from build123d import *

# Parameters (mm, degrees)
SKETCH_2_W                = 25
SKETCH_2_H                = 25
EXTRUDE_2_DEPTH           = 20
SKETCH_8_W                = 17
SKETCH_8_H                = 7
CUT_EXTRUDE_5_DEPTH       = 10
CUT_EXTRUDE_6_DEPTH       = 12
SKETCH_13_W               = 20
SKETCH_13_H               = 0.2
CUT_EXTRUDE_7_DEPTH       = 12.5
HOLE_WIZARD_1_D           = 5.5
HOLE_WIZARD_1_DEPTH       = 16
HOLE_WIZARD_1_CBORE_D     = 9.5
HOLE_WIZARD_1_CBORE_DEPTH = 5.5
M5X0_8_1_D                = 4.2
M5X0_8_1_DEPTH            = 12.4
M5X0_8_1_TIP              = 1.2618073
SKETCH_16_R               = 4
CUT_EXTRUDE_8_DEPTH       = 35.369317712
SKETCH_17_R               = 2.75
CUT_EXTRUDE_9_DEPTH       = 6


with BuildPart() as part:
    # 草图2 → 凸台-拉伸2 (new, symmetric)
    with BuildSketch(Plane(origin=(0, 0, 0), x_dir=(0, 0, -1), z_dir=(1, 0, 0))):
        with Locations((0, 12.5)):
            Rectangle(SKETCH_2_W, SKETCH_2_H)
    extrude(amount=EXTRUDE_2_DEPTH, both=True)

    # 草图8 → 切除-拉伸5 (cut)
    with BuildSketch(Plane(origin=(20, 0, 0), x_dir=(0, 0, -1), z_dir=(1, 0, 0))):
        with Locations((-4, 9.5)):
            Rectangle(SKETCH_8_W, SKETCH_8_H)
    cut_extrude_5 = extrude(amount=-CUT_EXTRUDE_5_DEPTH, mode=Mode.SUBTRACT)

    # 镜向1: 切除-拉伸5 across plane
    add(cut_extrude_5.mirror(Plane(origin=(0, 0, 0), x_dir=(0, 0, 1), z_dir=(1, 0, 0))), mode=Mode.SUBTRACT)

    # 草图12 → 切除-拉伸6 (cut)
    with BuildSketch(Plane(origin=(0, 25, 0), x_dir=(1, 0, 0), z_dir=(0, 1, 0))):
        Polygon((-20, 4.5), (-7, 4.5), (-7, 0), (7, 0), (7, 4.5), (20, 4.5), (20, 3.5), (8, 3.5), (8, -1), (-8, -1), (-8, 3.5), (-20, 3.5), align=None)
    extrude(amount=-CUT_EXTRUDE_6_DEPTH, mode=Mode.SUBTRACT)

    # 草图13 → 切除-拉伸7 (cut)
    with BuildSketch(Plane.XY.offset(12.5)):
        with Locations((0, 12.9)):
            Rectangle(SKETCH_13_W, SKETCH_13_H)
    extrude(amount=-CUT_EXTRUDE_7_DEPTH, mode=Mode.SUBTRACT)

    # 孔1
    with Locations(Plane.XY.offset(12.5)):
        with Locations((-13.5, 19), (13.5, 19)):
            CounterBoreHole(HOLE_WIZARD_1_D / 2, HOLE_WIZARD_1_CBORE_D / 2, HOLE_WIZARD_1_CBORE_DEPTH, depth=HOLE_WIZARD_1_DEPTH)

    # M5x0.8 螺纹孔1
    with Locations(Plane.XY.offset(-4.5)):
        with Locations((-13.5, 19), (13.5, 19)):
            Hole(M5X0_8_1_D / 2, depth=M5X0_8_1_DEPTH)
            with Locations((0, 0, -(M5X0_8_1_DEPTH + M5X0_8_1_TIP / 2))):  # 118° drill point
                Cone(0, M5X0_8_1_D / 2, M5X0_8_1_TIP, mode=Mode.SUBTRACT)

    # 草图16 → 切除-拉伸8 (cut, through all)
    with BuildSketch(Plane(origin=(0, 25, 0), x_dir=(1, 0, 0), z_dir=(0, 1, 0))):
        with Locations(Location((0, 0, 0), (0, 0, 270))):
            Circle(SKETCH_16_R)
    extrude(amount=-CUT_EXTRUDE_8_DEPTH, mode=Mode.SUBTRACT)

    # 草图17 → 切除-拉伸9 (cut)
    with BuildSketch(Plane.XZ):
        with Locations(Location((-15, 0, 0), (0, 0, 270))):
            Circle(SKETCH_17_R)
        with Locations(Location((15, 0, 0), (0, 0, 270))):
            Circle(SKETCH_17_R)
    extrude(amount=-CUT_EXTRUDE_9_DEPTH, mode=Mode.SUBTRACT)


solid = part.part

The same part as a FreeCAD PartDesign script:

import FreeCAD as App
import Part
import Sketcher

V = App.Vector
Q = App.Units.Quantity


def add_polygon(sketch, points):
    """Adds a closed chain of lines whose ends are joined by coincident constraints."""
    first, n = sketch.GeometryCount, len(points)
    for a, b in zip(points, points[1:] + points[:1]):
        sketch.addGeometry(Part.LineSegment(App.Vector(*a, 0), App.Vector(*b, 0)), False)
    for i in range(n):
        sketch.addConstraint(Sketcher.Constraint("Coincident", first + i, 2, first + (i + 1) % n, 1))

doc = App.newDocument("Part")
body = doc.addObject("PartDesign::Body", "Body")

sketch1 = doc.addObject("Sketcher::SketchObject", "Sketch")
body.addObject(sketch1)
sketch1.AttachmentSupport = (doc.YZ_Plane, [""])
sketch1.MapMode = "FlatFace"
add_polygon(sketch1, [(25, 12.5), (0, 12.5), (0, -12.5), (25, -12.5)])
sketch1.addConstraint([
    Sketcher.Constraint("Horizontal", 0),
    Sketcher.Constraint("Vertical", 1),
    Sketcher.Constraint("Horizontal", 2),
    Sketcher.Constraint("Vertical", 3),
    Sketcher.Constraint("Symmetric", 0, 2, 1, 2, -1, 1),
    Sketcher.Constraint("Equal", 2, 1),
    Sketcher.Constraint("DistanceX", 0, 2, 0, 1, Q("25 mm")),
])
pad1 = doc.addObject("PartDesign::Pad", "Pad")
body.addObject(pad1)
pad1.Profile = sketch1
pad1.Length = 40
pad1.Midplane = True

sketch2 = doc.addObject("Sketcher::SketchObject", "Sketch001")
body.addObject(sketch2)
sketch2.AttachmentSupport = (doc.YZ_Plane, [""])
sketch2.MapMode = "FlatFace"
sketch2.AttachmentOffset = App.Placement(V(0, 0, 20), App.Rotation())
add_polygon(sketch2, [(13, 12.5), (6, 12.5), (6, -4.5), (13, -4.5)])
sketch2.addConstraint([
    Sketcher.Constraint("Horizontal", 0),
    Sketcher.Constraint("Vertical", 1),
    Sketcher.Constraint("Horizontal", 2),
    Sketcher.Constraint("Vertical", 3),
    Sketcher.Constraint("DistanceX", 0, 2, 0, 1, Q("7 mm")),
    Sketcher.Constraint("DistanceY", 1, 2, 1, 1, Q("17 mm")),
    Sketcher.Constraint("DistanceX", -1, 1, 0, 2, Q("6 mm")),
    Sketcher.Constraint("DistanceY", -1, 1, 0, 2, Q("12.5 mm")),
])
pocket1 = doc.addObject("PartDesign::Pocket", "Pocket")
body.addObject(pocket1)
pocket1.Profile = sketch2
pocket1.Length = 10
doc.recompute()

mirrored = doc.addObject("PartDesign::Mirrored", "Mirrored")
body.addObject(mirrored)
mirrored.Originals = [pocket1]
mirrored.MirrorPlane = (doc.YZ_Plane, [""])
body.Tip = mirrored

sketch3 = doc.addObject("Sketcher::SketchObject", "Sketch002")
body.addObject(sketch3)
sketch3.AttachmentSupport = (doc.XZ_Plane, [""])
sketch3.MapMode = "FlatFace"
sketch3.AttachmentOffset = App.Placement(V(0, 0, -25), App.Rotation())
add_polygon(sketch3, [(-7, -4.5), (-20, -4.5), (-20, -3.5), (-8, -3.5), (-8, 1), (8, 1), (8, -3.5), (20, -3.5), (20, -4.5), (7, -4.5), (7, 0), (-7, 0)])
sketch3.addConstraint([
    Sketcher.Constraint("Horizontal", 0),
    Sketcher.Constraint("Vertical", 1),
    Sketcher.Constraint("Horizontal", 2),
    Sketcher.Constraint("Vertical", 3),
    Sketcher.Constraint("Horizontal", 4),
    Sketcher.Constraint("Vertical", 5),
    Sketcher.Constraint("Horizontal", 6),
    Sketcher.Constraint("Vertical", 7),
    Sketcher.Constraint("Horizontal", 8),
    Sketcher.Constraint("Vertical", 9),
    Sketcher.Constraint("Horizontal", 10),
    Sketcher.Constraint("Vertical", 11),
    Sketcher.Constraint("Symmetric", 9, 2, 10, 2, -1, 1),
    Sketcher.Constraint("Symmetric", 2, 2, 5, 2, -2),
    Sketcher.Constraint("Symmetric", 0, 2, 7, 2, -2),
    Sketcher.Constraint("Equal", 5, 9),
    Sketcher.Constraint("DistanceX", 0, 2, 0, 1, Q("13 mm")),
    Sketcher.Constraint("DistanceX", 2, 1, 2, 2, Q("12 mm")),
    Sketcher.Constraint("DistanceX", 4, 1, 4, 2, Q("16 mm")),
    Sketcher.Constraint("DistanceY", 1, 1, 1, 2, Q("1 mm")),
    Sketcher.Constraint("DistanceY", 3, 1, 3, 2, Q("4.5 mm")),
])
pocket2 = doc.addObject("PartDesign::Pocket", "Pocket001")
body.addObject(pocket2)
pocket2.Profile = sketch3
pocket2.Length = 12
pocket2.Reversed = True

sketch4 = doc.addObject("Sketcher::SketchObject", "Sketch003")
body.addObject(sketch4)
sketch4.AttachmentSupport = (doc.XY_Plane, [""])
sketch4.MapMode = "FlatFace"
sketch4.AttachmentOffset = App.Placement(V(0, 0, 12.5), App.Rotation())
add_polygon(sketch4, [(-10, 13), (-10, 12.8), (10, 12.8), (10, 13)])
sketch4.addConstraint([
    Sketcher.Constraint("Vertical", 0),
    Sketcher.Constraint("Horizontal", 1),
    Sketcher.Constraint("Vertical", 2),
    Sketcher.Constraint("Horizontal", 3),
    Sketcher.Constraint("DistanceX", 1, 1, 1, 2, Q("20 mm")),
    Sketcher.Constraint("DistanceY", 0, 2, 0, 1, Q("0.2 mm")),
    Sketcher.Constraint("DistanceX", 0, 2, -1, 1, Q("10 mm")),
    Sketcher.Constraint("DistanceY", -1, 1, 2, 2, Q("13 mm")),
])
pocket3 = doc.addObject("PartDesign::Pocket", "Pocket002")
body.addObject(pocket3)
pocket3.Profile = sketch4
pocket3.Length = 12.5

sketch5 = doc.addObject("Sketcher::SketchObject", "Sketch004")
body.addObject(sketch5)
sketch5.AttachmentSupport = (doc.XY_Plane, [""])
sketch5.MapMode = "FlatFace"
sketch5.AttachmentOffset = App.Placement(V(0, 0, 12.5), App.Rotation())
sketch5.addGeometry([
    Part.Circle(V(-13.5, 19, 0), V(0, 0, 1), 2.75),
    Part.Circle(V(13.5, 19, 0), V(0, 0, 1), 2.75),
], False)
sketch5.addConstraint([
    Sketcher.Constraint("Equal", 0, 1),
    Sketcher.Constraint("Symmetric", 0, 3, 1, 3, -2),
    Sketcher.Constraint("Diameter", 0, Q("5.5 mm")),
    Sketcher.Constraint("DistanceY", -1, 1, 0, 3, Q("19 mm")),
    Sketcher.Constraint("DistanceX", 0, 3, 1, 3, Q("27 mm")),
])
doc.recompute()
hole = doc.addObject("PartDesign::Hole", "Hole")
body.addObject(hole)
hole.Profile = sketch5
hole.ThreadType = "None"
hole.Diameter = 5.5
hole.DepthType = "Dimension"
hole.Depth = 16
hole.DrillPoint = "Flat"
hole.HoleCutType = "Counterbore"
hole.HoleCutDiameter = 9.5
hole.HoleCutDepth = 5.5

sketch6 = doc.addObject("Sketcher::SketchObject", "Sketch005")
body.addObject(sketch6)
sketch6.AttachmentSupport = (doc.XY_Plane, [""])
sketch6.MapMode = "FlatFace"
sketch6.AttachmentOffset = App.Placement(V(0, 0, -4.5), App.Rotation())
sketch6.addGeometry([
    Part.Circle(V(-13.5, 19, 0), V(0, 0, 1), 2.1),
    Part.Circle(V(13.5, 19, 0), V(0, 0, 1), 2.1),
], False)
sketch6.addConstraint([
    Sketcher.Constraint("Equal", 0, 1),
    Sketcher.Constraint("Symmetric", 0, 3, 1, 3, -2),
    Sketcher.Constraint("Diameter", 0, Q("4.2 mm")),
    Sketcher.Constraint("DistanceY", -1, 1, 0, 3, Q("19 mm")),
    Sketcher.Constraint("DistanceX", 0, 3, 1, 3, Q("27 mm")),
])
doc.recompute()
hole2 = doc.addObject("PartDesign::Hole", "Hole001")
body.addObject(hole2)
hole2.Profile = sketch6
hole2.ThreadType = "None"
hole2.Diameter = 4.2
hole2.DepthType = "Dimension"
hole2.Depth = 12.4
hole2.DrillPoint = "Angled"
hole2.DrillPointAngle = 118

sketch7 = doc.addObject("Sketcher::SketchObject", "Sketch006")
body.addObject(sketch7)
sketch7.AttachmentSupport = (doc.XZ_Plane, [""])
sketch7.MapMode = "FlatFace"
sketch7.AttachmentOffset = App.Placement(V(0, 0, -25), App.Rotation())
sketch7.addGeometry(Part.Circle(V(0, 0, 0), V(0, 0, 1), 4), False)
sketch7.addConstraint([
    Sketcher.Constraint("Coincident", 0, 3, -1, 1),
    Sketcher.Constraint("Diameter", 0, Q("8 mm")),
])
pocket4 = doc.addObject("PartDesign::Pocket", "Pocket003")
body.addObject(pocket4)
pocket4.Profile = sketch7
pocket4.Type = "ThroughAll"
pocket4.Reversed = True

sketch8 = doc.addObject("Sketcher::SketchObject", "Sketch007")
body.addObject(sketch8)
sketch8.AttachmentSupport = (doc.XZ_Plane, [""])
sketch8.MapMode = "FlatFace"
sketch8.addGeometry([
    Part.Circle(V(-15, 0, 0), V(0, 0, 1), 2.75),
    Part.Circle(V(15, 0, 0), V(0, 0, 1), 2.75),
], False)
sketch8.addConstraint([
    Sketcher.Constraint("Equal", 0, 1),
    Sketcher.Constraint("Symmetric", 0, 3, 1, 3, -1, 1),
    Sketcher.Constraint("PointOnObject", 0, 3, -1),
    Sketcher.Constraint("Diameter", 0, Q("5.5 mm")),
    Sketcher.Constraint("DistanceX", 0, 3, -1, 1, Q("15 mm")),
])
pocket5 = doc.addObject("PartDesign::Pocket", "Pocket004")
body.addObject(pocket5)
pocket5.Profile = sketch8
pocket5.Length = 6

doc.recompute()
